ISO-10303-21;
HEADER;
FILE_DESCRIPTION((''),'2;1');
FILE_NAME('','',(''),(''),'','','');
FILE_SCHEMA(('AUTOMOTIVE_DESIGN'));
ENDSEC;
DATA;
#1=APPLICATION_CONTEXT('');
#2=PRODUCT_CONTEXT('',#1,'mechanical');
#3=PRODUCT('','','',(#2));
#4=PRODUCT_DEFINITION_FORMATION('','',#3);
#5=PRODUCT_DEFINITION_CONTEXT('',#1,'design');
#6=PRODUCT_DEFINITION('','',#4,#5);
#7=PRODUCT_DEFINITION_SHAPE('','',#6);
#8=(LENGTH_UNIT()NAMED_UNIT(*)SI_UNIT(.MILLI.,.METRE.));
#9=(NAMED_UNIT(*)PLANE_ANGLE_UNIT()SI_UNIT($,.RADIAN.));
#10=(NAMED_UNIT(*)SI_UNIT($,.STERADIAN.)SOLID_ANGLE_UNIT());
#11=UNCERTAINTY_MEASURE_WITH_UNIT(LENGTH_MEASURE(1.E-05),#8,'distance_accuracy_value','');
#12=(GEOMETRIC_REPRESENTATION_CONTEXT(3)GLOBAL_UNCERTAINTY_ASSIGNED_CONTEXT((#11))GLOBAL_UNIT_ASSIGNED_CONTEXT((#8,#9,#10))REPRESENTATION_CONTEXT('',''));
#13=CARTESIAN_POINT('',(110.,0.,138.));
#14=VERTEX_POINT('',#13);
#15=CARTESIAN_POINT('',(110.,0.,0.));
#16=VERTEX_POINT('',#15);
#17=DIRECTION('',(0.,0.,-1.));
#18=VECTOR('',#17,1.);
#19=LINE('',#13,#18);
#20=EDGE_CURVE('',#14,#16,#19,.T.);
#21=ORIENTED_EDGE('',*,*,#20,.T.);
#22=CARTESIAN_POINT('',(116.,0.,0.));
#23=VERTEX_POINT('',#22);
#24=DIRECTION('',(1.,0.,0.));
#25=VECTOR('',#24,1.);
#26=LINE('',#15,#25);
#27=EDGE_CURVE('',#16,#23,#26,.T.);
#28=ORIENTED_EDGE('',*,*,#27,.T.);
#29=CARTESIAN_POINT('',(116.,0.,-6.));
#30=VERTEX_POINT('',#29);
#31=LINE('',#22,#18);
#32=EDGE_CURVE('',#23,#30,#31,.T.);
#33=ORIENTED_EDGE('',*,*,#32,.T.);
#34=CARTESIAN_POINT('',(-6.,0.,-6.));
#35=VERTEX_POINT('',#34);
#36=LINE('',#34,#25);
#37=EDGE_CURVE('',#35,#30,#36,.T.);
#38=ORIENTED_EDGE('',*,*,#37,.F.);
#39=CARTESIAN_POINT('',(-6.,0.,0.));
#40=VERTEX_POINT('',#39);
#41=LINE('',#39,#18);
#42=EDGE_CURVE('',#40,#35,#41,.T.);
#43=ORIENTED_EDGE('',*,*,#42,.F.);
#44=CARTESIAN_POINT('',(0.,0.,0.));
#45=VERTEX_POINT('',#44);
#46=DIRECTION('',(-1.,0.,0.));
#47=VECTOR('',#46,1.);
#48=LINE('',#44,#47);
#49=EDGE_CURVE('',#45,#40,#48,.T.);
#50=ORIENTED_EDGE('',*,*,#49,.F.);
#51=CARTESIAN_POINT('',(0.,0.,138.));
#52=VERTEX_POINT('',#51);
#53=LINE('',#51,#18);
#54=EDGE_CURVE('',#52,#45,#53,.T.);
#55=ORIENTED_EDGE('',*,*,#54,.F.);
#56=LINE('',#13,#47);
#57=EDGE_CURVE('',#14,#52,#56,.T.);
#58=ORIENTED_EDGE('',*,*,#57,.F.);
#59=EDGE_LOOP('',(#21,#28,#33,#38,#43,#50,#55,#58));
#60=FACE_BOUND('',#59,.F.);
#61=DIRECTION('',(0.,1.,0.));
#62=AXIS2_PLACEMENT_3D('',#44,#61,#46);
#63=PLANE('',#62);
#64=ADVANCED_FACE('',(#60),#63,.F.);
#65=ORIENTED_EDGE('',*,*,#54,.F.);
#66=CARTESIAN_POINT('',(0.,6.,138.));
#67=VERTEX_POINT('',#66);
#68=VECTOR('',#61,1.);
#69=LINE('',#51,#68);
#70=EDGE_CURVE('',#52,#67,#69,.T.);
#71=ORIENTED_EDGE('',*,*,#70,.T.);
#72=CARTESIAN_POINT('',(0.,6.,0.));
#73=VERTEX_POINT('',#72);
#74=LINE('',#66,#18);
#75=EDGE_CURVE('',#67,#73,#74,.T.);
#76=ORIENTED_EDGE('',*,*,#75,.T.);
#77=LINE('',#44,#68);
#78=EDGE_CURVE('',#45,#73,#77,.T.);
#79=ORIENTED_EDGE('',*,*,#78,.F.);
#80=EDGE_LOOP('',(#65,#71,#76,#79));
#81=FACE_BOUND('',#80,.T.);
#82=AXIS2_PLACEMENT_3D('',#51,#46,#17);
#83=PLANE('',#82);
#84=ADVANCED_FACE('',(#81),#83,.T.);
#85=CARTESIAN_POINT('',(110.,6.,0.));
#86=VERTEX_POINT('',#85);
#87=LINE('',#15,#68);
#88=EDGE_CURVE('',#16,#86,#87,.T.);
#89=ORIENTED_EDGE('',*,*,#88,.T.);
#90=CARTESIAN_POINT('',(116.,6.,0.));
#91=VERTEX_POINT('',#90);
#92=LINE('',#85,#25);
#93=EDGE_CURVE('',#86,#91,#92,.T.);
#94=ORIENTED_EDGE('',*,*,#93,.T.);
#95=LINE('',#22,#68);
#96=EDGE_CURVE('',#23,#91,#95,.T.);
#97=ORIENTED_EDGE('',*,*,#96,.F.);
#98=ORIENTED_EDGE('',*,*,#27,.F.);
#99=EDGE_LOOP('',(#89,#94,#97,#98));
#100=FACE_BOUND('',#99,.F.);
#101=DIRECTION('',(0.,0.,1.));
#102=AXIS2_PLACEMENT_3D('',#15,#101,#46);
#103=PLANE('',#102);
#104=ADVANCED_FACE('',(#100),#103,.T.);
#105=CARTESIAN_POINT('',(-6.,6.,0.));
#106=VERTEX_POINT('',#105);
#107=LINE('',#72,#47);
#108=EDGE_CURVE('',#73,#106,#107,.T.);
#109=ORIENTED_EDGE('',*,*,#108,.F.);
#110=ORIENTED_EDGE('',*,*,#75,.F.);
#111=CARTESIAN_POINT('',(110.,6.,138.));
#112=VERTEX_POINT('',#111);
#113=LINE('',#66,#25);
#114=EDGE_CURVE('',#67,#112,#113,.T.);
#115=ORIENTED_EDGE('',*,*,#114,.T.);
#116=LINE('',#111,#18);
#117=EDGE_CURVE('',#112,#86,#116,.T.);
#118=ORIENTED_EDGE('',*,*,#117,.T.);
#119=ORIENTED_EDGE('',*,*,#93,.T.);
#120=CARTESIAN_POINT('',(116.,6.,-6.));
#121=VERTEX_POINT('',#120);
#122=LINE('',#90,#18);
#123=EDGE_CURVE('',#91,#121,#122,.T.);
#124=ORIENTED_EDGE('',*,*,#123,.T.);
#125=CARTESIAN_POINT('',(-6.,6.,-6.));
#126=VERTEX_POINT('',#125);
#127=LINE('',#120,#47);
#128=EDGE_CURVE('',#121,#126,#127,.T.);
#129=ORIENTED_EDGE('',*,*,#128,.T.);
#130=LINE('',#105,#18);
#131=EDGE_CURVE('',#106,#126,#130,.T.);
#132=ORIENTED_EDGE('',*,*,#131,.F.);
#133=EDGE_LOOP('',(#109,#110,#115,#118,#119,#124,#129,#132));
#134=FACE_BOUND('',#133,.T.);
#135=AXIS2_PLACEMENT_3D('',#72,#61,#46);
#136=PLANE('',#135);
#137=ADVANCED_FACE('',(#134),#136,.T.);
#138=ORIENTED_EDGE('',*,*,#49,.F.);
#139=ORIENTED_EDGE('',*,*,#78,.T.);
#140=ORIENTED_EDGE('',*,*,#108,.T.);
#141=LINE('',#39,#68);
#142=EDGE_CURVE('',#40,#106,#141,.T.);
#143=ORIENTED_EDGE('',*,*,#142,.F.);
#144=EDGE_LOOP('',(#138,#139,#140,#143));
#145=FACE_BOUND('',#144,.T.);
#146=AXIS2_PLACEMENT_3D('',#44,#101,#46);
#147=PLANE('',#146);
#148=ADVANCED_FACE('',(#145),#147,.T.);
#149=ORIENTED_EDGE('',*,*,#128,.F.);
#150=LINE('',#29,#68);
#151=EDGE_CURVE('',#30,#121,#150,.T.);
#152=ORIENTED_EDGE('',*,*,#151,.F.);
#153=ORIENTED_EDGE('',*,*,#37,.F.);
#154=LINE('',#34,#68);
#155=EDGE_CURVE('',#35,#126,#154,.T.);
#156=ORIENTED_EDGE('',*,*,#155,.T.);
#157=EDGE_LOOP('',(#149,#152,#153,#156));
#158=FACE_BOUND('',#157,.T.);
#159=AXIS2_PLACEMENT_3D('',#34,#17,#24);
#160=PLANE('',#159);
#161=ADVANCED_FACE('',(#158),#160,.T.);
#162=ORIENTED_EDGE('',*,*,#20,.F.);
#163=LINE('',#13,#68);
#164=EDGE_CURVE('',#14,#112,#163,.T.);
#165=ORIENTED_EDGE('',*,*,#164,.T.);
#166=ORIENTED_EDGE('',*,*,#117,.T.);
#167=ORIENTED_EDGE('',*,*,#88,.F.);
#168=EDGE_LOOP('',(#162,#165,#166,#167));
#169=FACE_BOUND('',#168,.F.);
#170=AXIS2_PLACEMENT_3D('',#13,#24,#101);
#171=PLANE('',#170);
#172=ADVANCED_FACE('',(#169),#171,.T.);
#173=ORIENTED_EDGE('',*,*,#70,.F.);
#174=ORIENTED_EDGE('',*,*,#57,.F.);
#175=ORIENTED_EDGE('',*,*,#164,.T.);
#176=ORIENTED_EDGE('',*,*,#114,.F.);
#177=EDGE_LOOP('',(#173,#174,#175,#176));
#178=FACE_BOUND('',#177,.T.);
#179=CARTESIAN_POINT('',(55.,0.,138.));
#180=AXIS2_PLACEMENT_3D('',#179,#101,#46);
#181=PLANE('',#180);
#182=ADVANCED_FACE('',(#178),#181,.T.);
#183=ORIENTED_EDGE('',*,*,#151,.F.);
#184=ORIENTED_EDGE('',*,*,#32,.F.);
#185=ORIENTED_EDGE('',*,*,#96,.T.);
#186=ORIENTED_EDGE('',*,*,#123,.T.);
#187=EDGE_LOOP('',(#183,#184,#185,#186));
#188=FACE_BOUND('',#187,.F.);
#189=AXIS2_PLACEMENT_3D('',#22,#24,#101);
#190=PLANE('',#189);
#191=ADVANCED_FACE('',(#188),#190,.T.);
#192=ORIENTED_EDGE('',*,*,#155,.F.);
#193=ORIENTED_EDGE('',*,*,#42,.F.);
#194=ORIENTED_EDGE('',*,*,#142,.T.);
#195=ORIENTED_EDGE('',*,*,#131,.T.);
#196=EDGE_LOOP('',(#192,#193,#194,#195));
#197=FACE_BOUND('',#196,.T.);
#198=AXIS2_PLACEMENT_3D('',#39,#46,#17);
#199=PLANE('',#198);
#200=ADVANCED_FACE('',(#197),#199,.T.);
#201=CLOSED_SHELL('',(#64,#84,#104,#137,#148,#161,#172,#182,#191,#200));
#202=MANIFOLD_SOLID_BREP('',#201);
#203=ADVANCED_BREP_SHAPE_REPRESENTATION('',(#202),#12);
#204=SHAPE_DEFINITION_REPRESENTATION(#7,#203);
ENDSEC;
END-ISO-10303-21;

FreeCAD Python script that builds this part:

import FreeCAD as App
import Part
import Sketcher
Q = App.Units.Quantity

doc = App.newDocument("Part")
params = doc.addObject("Spreadsheet::Sheet", "Params")
for row, (alias, value) in enumerate([
    ("sketch1_width", "6 mm"),
    ("sketch1_width2", "55 mm"),
    ("sketch1_height", "144 mm"),
    ("pad1_length", "6 mm"),
], start=1):
    params.set(f"A{row}", alias)
    params.set(f"B{row}", "=" + value)
    params.setAlias(f"B{row}", alias)

body = doc.addObject("PartDesign::Body", "Body")

# Sketch on XZ plane
sketch1 = body.newObject("Sketcher::SketchObject", "Sketch")
sketch1.AttachmentSupport = (doc.getObject("XZ_Plane"), [""])
sketch1.MapMode = "FlatFace"
sketch1.addGeometry(Part.LineSegment(App.Vector(-6, 0, 0), App.Vector(0, 0, 0)), False)
sketch1.addGeometry(Part.LineSegment(App.Vector(0, 0, 0), App.Vector(0, 138, 0)), False)
sketch1.addGeometry(Part.LineSegment(App.Vector(0, 138, 0), App.Vector(55, 138, 0)), False)
sketch1.addGeometry(Part.LineSegment(App.Vector(55, 138, 0), App.Vector(55, -6, 0)), False)
sketch1.addGeometry(Part.LineSegment(App.Vector(55, -6, 0), App.Vector(-6, -6, 0)), False)
sketch1.addGeometry(Part.LineSegment(App.Vector(-6, -6, 0), App.Vector(-6, 0, 0)), False)
sketch1.addConstraint(Sketcher.Constraint("Coincident", 0, 2, 1, 1))
sketch1.addConstraint(Sketcher.Constraint("Coincident", 1, 2, 2, 1))
sketch1.addConstraint(Sketcher.Constraint("Coincident", 2, 2, 3, 1))
sketch1.addConstraint(Sketcher.Constraint("Coincident", 3, 2, 4, 1))
sketch1.addConstraint(Sketcher.Constraint("Coincident", 4, 2, 5, 1))
sketch1.addConstraint(Sketcher.Constraint("Coincident", 5, 2, 0, 1))
sketch1.addConstraint(Sketcher.Constraint("Horizontal", 0))
sketch1.addConstraint(Sketcher.Constraint("Vertical", 1))
sketch1.addConstraint(Sketcher.Constraint("Horizontal", 2))
sketch1.addConstraint(Sketcher.Constraint("Vertical", 3))
sketch1.addConstraint(Sketcher.Constraint("Horizontal", 4))
sketch1.addConstraint(Sketcher.Constraint("Vertical", 5))
sketch1.addConstraint(Sketcher.Constraint("Coincident", 0, 2, -1, 1))
sketch1.addConstraint(Sketcher.Constraint("Equal", 0, 5))
sketch1.addConstraint(Sketcher.Constraint("DistanceX", 0, 1, 0, 2, Q("6 mm")))
sketch1.addConstraint(Sketcher.Constraint("DistanceX", 2, 1, 2, 2, Q("55 mm")))
sketch1.addConstraint(Sketcher.Constraint("DistanceY", 3, 2, 3, 1, Q("144 mm")))
sketch1.setExpression("Constraints[14]", "Params.sketch1_width")
sketch1.setExpression("Constraints[15]", "Params.sketch1_width2")
sketch1.setExpression("Constraints[16]", "Params.sketch1_height")
pad1 = body.newObject("PartDesign::Pad", "Pad")
pad1.Profile = sketch1
pad1.setExpression("Length", "Params.pad1_length")
pad1.Reversed = True
doc.recompute()

datumplane = body.newObject("PartDesign::Plane", "DatumPlane")
datumplane.AttachmentSupport = (doc.getObject("YZ_Plane"), [""])
datumplane.MapMode = "FlatFace"
datumplane.AttachmentOffset = App.Placement(App.Vector(0, 0, 55), App.Rotation())
mirrored = body.newObject("PartDesign::Mirrored", "Mirrored")
mirrored.Originals = [pad1]
mirrored.MirrorPlane = (datumplane, [""])
body.Tip = mirrored

doc.recompute()
